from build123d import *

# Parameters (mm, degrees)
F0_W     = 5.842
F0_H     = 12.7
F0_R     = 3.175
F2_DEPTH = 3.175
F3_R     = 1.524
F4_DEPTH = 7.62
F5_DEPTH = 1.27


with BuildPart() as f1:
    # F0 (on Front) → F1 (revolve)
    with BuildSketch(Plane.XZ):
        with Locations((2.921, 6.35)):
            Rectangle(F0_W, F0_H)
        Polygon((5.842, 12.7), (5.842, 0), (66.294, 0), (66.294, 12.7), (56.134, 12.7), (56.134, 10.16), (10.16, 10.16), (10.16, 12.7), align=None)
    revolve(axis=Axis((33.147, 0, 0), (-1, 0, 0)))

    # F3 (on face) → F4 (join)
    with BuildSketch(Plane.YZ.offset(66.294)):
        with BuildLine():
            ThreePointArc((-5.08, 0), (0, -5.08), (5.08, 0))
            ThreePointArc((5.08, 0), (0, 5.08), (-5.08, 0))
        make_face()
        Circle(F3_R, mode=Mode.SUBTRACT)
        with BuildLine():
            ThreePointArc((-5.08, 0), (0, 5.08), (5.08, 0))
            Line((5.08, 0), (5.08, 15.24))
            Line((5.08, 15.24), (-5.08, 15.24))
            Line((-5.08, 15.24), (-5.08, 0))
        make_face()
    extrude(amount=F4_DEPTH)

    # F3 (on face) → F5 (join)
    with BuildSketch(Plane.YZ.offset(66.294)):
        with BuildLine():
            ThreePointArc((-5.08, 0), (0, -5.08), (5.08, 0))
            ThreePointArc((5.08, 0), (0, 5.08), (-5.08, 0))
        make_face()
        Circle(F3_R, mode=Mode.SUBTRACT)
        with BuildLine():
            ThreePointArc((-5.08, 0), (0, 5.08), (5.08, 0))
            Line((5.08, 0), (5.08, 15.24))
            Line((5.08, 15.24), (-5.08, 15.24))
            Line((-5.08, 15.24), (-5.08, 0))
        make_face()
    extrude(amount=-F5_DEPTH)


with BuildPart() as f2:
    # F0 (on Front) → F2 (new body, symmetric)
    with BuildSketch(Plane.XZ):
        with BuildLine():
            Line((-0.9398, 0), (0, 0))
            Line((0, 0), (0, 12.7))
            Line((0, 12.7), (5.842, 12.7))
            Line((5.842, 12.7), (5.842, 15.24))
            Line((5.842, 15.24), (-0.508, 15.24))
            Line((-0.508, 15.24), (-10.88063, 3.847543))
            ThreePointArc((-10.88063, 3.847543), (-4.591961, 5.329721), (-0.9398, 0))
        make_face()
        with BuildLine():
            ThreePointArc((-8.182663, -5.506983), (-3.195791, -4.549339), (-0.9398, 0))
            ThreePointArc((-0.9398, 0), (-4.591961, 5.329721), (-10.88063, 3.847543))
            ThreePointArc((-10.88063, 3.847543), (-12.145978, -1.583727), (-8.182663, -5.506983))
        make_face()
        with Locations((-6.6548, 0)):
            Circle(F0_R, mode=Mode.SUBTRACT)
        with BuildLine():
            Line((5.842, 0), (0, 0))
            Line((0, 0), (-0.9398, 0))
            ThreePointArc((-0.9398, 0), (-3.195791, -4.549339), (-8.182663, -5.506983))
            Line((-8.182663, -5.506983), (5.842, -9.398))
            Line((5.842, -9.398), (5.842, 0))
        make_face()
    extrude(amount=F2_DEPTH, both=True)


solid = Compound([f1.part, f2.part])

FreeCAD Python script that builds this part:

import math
import FreeCAD as App
import Part
import Sketcher

V = App.Vector
Q = App.Units.Quantity


def add_polygon(sketch, points):
    """Adds a closed chain of lines whose ends are joined by coincident constraints."""
    first, n = sketch.GeometryCount, len(points)
    for a, b in zip(points, points[1:] + points[:1]):
        sketch.addGeometry(Part.LineSegment(App.Vector(*a, 0), App.Vector(*b, 0)), False)
    for i in range(n):
        sketch.addConstraint(Sketcher.Constraint("Coincident", first + i, 2, first + (i + 1) % n, 1))

doc = App.newDocument("Part")
body = doc.addObject("PartDesign::Body", "Body")

sketch1 = body.newObject("Sketcher::SketchObject", "Sketch")
sketch1.AttachmentSupport = (doc.getObject("XZ_Plane"), [""])
sketch1.MapMode = "FlatFace"
add_polygon(sketch1, [(0, 12.7), (0, 0), (66.3, 0), (66.3, 12.7), (56.1, 12.7), (56.1, 10.2), (10.2, 10.2), (10.2, 12.7)])
sketch1.addConstraint([
    Sketcher.Constraint("Vertical", 0),
    Sketcher.Constraint("Horizontal", 1),
    Sketcher.Constraint("Vertical", 2),
    Sketcher.Constraint("Horizontal", 3),
    Sketcher.Constraint("Vertical", 4),
    Sketcher.Constraint("Horizontal", 5),
    Sketcher.Constraint("Vertical", 6),
    Sketcher.Constraint("Horizontal", 7),
    Sketcher.Constraint("Coincident", 0, 2, -1, 1),
    Sketcher.Constraint("Horizontal", 3, 2, 6, 2),
    Sketcher.Constraint("Equal", 3, 7),
    Sketcher.Constraint("DistanceX", 3, 2, 3, 1, Q("0.4 in")),
    Sketcher.Constraint("DistanceY", 0, 2, 0, 1, Q("0.5 in")),
    Sketcher.Constraint("DistanceY", 4, 2, 4, 1, Q("0.1 in")),
    Sketcher.Constraint("DistanceX", 1, 1, 1, 2, Q("2.61 in")),
])
revolution = body.newObject("PartDesign::Revolution", "Revolution")
revolution.Profile = sketch1
revolution.ReferenceAxis = (sketch1, ["H_Axis"])
revolution.Angle = 360

sketch2 = body.newObject("Sketcher::SketchObject", "Sketch001")
sketch2.AttachmentSupport = (doc.getObject("YZ_Plane"), [""])
sketch2.MapMode = "FlatFace"
sketch2.AttachmentOffset = App.Placement(V(0, 0, 2.61 * 25.4), App.Rotation())
sketch2.addGeometry([
    Part.ArcOfCircle(Part.Circle(V(0, 0, 0), V(0, 0, 1), 5.1), math.radians(180), math.radians(360)),
    Part.LineSegment(V(5.1, 0, 0), V(5.1, 15.2, 0)),
    Part.LineSegment(V(5.1, 15.2, 0), V(-5.1, 15.2, 0)),
    Part.LineSegment(V(-5.1, 15.2, 0), V(-5.1, 0, 0)),
    Part.Circle(V(0, 0, 0), V(0, 0, 1), 1.5),
], False)
sketch2.addConstraint([
    Sketcher.Constraint("Tangent", 0, 2, 1, 1),
    Sketcher.Constraint("Coincident", 1, 2, 2, 1),
    Sketcher.Constraint("Coincident", 2, 2, 3, 1),
    Sketcher.Constraint("Tangent", 3, 2, 0, 1),
    Sketcher.Constraint("Vertical", 1),
    Sketcher.Constraint("Horizontal", 2),
    Sketcher.Constraint("Vertical", 3),
    Sketcher.Constraint("Coincident", 0, 3, -1, 1),
    Sketcher.Constraint("Coincident", 4, 3, -1, 1),
    Sketcher.Constraint("Radius", 0, Q("0.2 in")),
    Sketcher.Constraint("Diameter", 4, Q("0.12 in")),
    Sketcher.Constraint("DistanceY", 1, 1, 1, 2, Q("0.6 in")),
])
pad1 = body.newObject("PartDesign::Pad", "Pad")
pad1.Profile = sketch2
pad1.Length = Q("0.3 in")

sketch3 = body.newObject("Sketcher::SketchObject", "Sketch002")
sketch3.AttachmentSupport = (doc.getObject("YZ_Plane"), [""])
sketch3.MapMode = "FlatFace"
sketch3.AttachmentOffset = App.Placement(V(0, 0, 2.61 * 25.4), App.Rotation())
sketch3.addGeometry([
    Part.ArcOfCircle(Part.Circle(V(0, 0, 0), V(0, 0, 1), 5.1), math.radians(180), math.radians(360)),
    Part.LineSegment(V(5.1, 0, 0), V(5.1, 15.2, 0)),
    Part.LineSegment(V(5.1, 15.2, 0), V(-5.1, 15.2, 0)),
    Part.LineSegment(V(-5.1, 15.2, 0), V(-5.1, 0, 0)),
    Part.Circle(V(0, 0, 0), V(0, 0, 1), 1.5),
], False)
sketch3.addConstraint([
    Sketcher.Constraint("Tangent", 0, 2, 1, 1),
    Sketcher.Constraint("Coincident", 1, 2, 2, 1),
    Sketcher.Constraint("Coincident", 2, 2, 3, 1),
    Sketcher.Constraint("Tangent", 3, 2, 0, 1),
    Sketcher.Constraint("Vertical", 1),
    Sketcher.Constraint("Horizontal", 2),
    Sketcher.Constraint("Vertical", 3),
    Sketcher.Constraint("Coincident", 0, 3, -1, 1),
    Sketcher.Constraint("Coincident", 4, 3, -1, 1),
    Sketcher.Constraint("Radius", 0, Q("0.2 in")),
    Sketcher.Constraint("Diameter", 4, Q("0.12 in")),
    Sketcher.Constraint("DistanceY", 1, 1, 1, 2, Q("0.6 in")),
])
pad2 = body.newObject("PartDesign::Pad", "Pad001")
pad2.Profile = sketch3
pad2.Length = Q("0.05 in")
pad2.Reversed = True
body2 = doc.addObject("PartDesign::Body", "Body001")

sketch4 = body2.newObject("Sketcher::SketchObject", "Sketch003")
sketch4.AttachmentSupport = (doc.getObject("XZ_Plane001"), [""])
sketch4.MapMode = "FlatFace"
sketch4.addGeometry([
    Part.LineSegment(V(0, 0, 0), V(0, 12.7, 0)),
    Part.LineSegment(V(0, 12.7, 0), V(5.8, 12.7, 0)),
    Part.LineSegment(V(5.8, 12.7, 0), V(5.8, 15.2, 0)),
    Part.LineSegment(V(5.8, 15.2, 0), V(-0.5, 15.2, 0)),
    Part.LineSegment(V(-0.5, 15.2, 0), V(-10.9, 3.8, 0)),
    Part.ArcOfCircle(Part.Circle(V(-6.7, 0, 0), V(0, 0, 1), 5.7), math.radians(138), math.radians(254)),
    Part.LineSegment(V(-8.2, -5.5, 0), V(5.8, -9.4, 0)),
    Part.LineSegment(V(5.8, -9.4, 0), V(5.8, 0, 0)),
    Part.LineSegment(V(5.8, 0, 0), V(0, 0, 0)),
    Part.Circle(V(-6.7, 0, 0), V(0, 0, 1), 3.2),
], False)
sketch4.addConstraint([
    Sketcher.Constraint("Coincident", 0, 2, 1, 1),
    Sketcher.Constraint("Coincident", 1, 2, 2, 1),
    Sketcher.Constraint("Coincident", 2, 2, 3, 1),
    Sketcher.Constraint("Coincident", 3, 2, 4, 1),
    Sketcher.Constraint("Tangent", 4, 2, 5, 1),
    Sketcher.Constraint("Tangent", 5, 2, 6, 1),
    Sketcher.Constraint("Coincident", 6, 2, 7, 1),
    Sketcher.Constraint("Coincident", 7, 2, 8, 1),
    Sketcher.Constraint("Coincident", 8, 2, 0, 1),
    Sketcher.Constraint("Vertical", 0),
    Sketcher.Constraint("Horizontal", 1),
    Sketcher.Constraint("Vertical", 2),
    Sketcher.Constraint("Horizontal", 3),
    Sketcher.Constraint("Vertical", 7),
    Sketcher.Constraint("Horizontal", 8),
    Sketcher.Constraint("Coincident", 8, 2, -1, 1),
    Sketcher.Constraint("Coincident", 9, 3, 5, 3),
    Sketcher.Constraint("PointOnObject", 5, 3, -1),
    Sketcher.Constraint("Vertical", 2, 2, 6, 2),
    Sketcher.Constraint("Diameter", 9, Q("0.25 in")),
    Sketcher.Constraint("DistanceY", 0, 1, 0, 2, Q("0.5 in")),
    Sketcher.Constraint("DistanceY", 2, 1, 2, 2, Q("0.1 in")),
    Sketcher.Constraint("Radius", 5, Q("0.225 in")),
    Sketcher.Constraint("DistanceX", 1, 1, 1, 2, Q("0.23 in")),
    Sketcher.Constraint("DistanceX", 3, 2, 3, 1, Q("0.25 in")),
    Sketcher.Constraint("DistanceY", 7, 1, 7, 2, Q("0.37 in")),
    Sketcher.Constraint("DistanceX", 5, 3, -1, 1, Q("0.262 in")),
])
pad3 = body2.newObject("PartDesign::Pad", "Pad002")
pad3.Profile = sketch4
pad3.Length = Q("0.25 in")
pad3.Midplane = True

doc.recompute()
